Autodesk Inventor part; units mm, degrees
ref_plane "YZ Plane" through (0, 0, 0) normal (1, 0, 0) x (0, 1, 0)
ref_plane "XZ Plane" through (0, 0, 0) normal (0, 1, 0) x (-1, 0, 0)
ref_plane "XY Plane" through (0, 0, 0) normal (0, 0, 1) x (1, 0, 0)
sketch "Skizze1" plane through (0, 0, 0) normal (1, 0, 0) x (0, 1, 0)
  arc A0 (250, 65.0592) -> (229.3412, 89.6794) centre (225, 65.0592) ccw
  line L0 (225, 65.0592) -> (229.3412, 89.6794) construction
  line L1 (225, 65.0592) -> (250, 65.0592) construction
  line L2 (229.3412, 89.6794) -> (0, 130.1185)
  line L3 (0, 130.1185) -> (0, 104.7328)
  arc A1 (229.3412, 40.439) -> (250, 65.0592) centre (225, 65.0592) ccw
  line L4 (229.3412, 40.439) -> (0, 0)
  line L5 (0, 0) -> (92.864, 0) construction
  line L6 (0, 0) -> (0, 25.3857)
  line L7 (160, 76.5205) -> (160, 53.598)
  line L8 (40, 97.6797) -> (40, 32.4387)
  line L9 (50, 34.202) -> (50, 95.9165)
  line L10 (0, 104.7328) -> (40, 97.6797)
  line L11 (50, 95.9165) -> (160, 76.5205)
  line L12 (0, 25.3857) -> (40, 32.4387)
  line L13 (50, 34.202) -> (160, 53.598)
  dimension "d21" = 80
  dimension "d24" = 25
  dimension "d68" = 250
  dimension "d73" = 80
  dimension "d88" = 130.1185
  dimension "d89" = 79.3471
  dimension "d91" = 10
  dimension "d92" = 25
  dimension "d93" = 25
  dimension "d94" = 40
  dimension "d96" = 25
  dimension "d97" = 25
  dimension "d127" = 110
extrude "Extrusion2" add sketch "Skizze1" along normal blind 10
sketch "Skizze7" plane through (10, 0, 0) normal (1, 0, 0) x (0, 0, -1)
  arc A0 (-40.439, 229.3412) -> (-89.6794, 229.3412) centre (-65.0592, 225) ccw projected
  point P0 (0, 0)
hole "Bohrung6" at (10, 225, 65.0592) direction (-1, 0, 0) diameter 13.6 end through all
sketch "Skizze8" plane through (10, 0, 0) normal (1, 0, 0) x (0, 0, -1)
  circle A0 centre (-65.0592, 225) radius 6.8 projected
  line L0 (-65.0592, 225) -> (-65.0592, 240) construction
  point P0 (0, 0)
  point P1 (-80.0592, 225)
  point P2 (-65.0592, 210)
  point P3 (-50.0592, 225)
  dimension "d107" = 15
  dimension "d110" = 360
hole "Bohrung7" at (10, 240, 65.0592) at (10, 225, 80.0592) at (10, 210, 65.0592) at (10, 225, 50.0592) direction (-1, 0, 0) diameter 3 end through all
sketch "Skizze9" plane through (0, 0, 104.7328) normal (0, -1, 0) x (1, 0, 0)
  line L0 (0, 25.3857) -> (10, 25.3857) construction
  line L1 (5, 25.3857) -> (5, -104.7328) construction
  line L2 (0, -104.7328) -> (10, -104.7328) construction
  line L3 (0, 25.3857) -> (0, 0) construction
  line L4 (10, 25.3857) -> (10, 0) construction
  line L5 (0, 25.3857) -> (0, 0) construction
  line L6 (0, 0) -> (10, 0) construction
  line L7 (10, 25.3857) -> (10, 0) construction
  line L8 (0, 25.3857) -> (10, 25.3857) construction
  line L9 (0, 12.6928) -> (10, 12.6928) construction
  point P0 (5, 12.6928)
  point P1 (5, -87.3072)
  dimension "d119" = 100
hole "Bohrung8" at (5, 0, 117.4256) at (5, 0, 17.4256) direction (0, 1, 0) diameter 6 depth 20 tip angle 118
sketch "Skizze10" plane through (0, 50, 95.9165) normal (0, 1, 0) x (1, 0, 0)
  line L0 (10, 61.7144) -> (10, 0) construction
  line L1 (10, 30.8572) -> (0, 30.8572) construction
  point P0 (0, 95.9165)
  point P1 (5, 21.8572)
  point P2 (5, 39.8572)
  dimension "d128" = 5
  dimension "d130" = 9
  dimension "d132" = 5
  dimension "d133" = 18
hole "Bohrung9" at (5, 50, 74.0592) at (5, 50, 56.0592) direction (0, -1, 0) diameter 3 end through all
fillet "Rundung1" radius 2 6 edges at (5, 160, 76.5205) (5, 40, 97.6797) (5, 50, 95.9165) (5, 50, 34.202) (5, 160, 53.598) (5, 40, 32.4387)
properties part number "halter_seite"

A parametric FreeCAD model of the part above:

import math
import FreeCAD as App
import Part
import Sketcher

V = App.Vector
Q = App.Units.Quantity


def edges_at(feature, points):
    """Names of the edges that pass closest to the given points."""
    edges = feature.Shape.Edges
    near = lambda p: min(range(len(edges)), key=lambda i: edges[i].distToShape(Part.Vertex(*p))[0])
    return sorted({f"Edge{near(p) + 1}" for p in points})

doc = App.newDocument("Part")
body = doc.addObject("PartDesign::Body", "Body")

# Sketch on YZ plane
sketch1 = body.newObject("Sketcher::SketchObject", "Sketch")
sketch1.AttachmentSupport = (doc.getObject("YZ_Plane"), [""])
sketch1.MapMode = "FlatFace"
sketch1.addGeometry(Part.ArcOfCircle(Part.Circle(V(225, 65, 0), V(0, 0, 1), 25), math.radians(-80), math.radians(0)), False)
sketch1.addGeometry(Part.ArcOfCircle(Part.Circle(V(225, 65, 0), V(0, 0, 1), 25), math.radians(0), math.radians(80)), False)
sketch1.addGeometry(Part.LineSegment(V(229, 90, 0), V(0, 130, 0)), False)
sketch1.addGeometry(Part.LineSegment(V(0, 130, 0), V(0, 105, 0)), False)
sketch1.addGeometry(Part.LineSegment(V(0, 105, 0), V(40, 98, 0)), False)
sketch1.addGeometry(Part.LineSegment(V(40, 98, 0), V(40, 32, 0)), False)
sketch1.addGeometry(Part.LineSegment(V(40, 32, 0), V(0, 25, 0)), False)
sketch1.addGeometry(Part.LineSegment(V(0, 25, 0), V(0, 0, 0)), False)
sketch1.addGeometry(Part.LineSegment(V(0, 0, 0), V(229, 40, 0)), False)
sketch1.addGeometry(Part.LineSegment(V(50, 96, 0), V(160, 77, 0)), False)
sketch1.addGeometry(Part.LineSegment(V(160, 77, 0), V(160, 54, 0)), False)
sketch1.addGeometry(Part.LineSegment(V(160, 54, 0), V(50, 34, 0)), False)
sketch1.addGeometry(Part.LineSegment(V(50, 34, 0), V(50, 96, 0)), False)
sketch1.addConstraint(Sketcher.Constraint("Tangent", 0, 2, 1, 1))
sketch1.addConstraint(Sketcher.Constraint("Tangent", 1, 2, 2, 1))
sketch1.addConstraint(Sketcher.Constraint("Coincident", 2, 2, 3, 1))
sketch1.addConstraint(Sketcher.Constraint("Coincident", 3, 2, 4, 1))
sketch1.addConstraint(Sketcher.Constraint("Coincident", 4, 2, 5, 1))
sketch1.addConstraint(Sketcher.Constraint("Coincident", 5, 2, 6, 1))
sketch1.addConstraint(Sketcher.Constraint("Coincident", 6, 2, 7, 1))
sketch1.addConstraint(Sketcher.Constraint("Coincident", 7, 2, 8, 1))
sketch1.addConstraint(Sketcher.Constraint("Tangent", 8, 2, 0, 1))
sketch1.addConstraint(Sketcher.Constraint("Coincident", 9, 2, 10, 1))
sketch1.addConstraint(Sketcher.Constraint("Coincident", 10, 2, 11, 1))
sketch1.addConstraint(Sketcher.Constraint("Coincident", 11, 2, 12, 1))
sketch1.addConstraint(Sketcher.Constraint("Coincident", 12, 2, 9, 1))
sketch1.addConstraint(Sketcher.Constraint("Vertical", 3))
sketch1.addConstraint(Sketcher.Constraint("Vertical", 5))
sketch1.addConstraint(Sketcher.Constraint("Vertical", 7))
sketch1.addConstraint(Sketcher.Constraint("Vertical", 10))
sketch1.addConstraint(Sketcher.Constraint("Vertical", 12))
sketch1.addConstraint(Sketcher.Constraint("Coincident", 7, 2, -1, 1))
sketch1.addConstraint(Sketcher.Constraint("Equal", 0, 1))
sketch1.addConstraint(Sketcher.Constraint("PointOnObject", 2, 2, -2))
sketch1.addConstraint(Sketcher.Constraint("Parallel", 2, 4))
sketch1.addConstraint(Sketcher.Constraint("Parallel", 6, 8))
sketch1.addConstraint(Sketcher.Constraint("Parallel", 4, 9))
sketch1.addConstraint(Sketcher.Constraint("Parallel", 8, 11))
sketch1.addConstraint(Sketcher.Constraint("Horizontal", 1, 3, 0, 2))
sketch1.addConstraint(Sketcher.Constraint("Vertical", 1, 2, 8, 2))
sketch1.addConstraint(Sketcher.Constraint("Equal", 3, 7))
sketch1.addConstraint(Sketcher.Constraint("Radius", 0, Q("25 mm")))
sketch1.addConstraint(Sketcher.Constraint("Angle", 4, Q("-10 deg")))
sketch1.addConstraint(Sketcher.Constraint("DistanceX", -1, 1, 0, 2, Q("250 mm")))
sketch1.addConstraint(Sketcher.Constraint("DistanceX", -1, 1, 4, 2, Q("40 mm")))
sketch1.addConstraint(Sketcher.Constraint("DistanceX", 5, 2, 11, 2, Q("10 mm")))
sketch1.addConstraint(Sketcher.Constraint("DistanceX", -1, 1, 9, 2, Q("160 mm")))
sketch1.addConstraint(Sketcher.Constraint("DistanceY", 6, 2, 3, 2, Q("79.347 mm")))
sketch1.addConstraint(Sketcher.Constraint("DistanceY", 10, 2, 10, 1, Q("22.9225 mm")))
sketch1.addConstraint(Sketcher.Constraint("DistanceY", -1, 1, 10, 2, Q("53.598 mm")))
pad1 = body.newObject("PartDesign::Pad", "Pad")
pad1.Profile = sketch1
pad1.Length = 10

# Sketch on YZ plane
sketch2 = body.newObject("Sketcher::SketchObject", "Sketch001")
sketch2.AttachmentSupport = (doc.getObject("YZ_Plane"), [""])
sketch2.MapMode = "FlatFace"
sketch2.AttachmentOffset = App.Placement(V(0, 0, 10), App.Rotation())
sketch2.addGeometry(Part.Circle(V(225, 65, 0), V(0, 0, 1), 7), False)
sketch2.addConstraint(Sketcher.Constraint("Diameter", 0, Q("13.6 mm")))
sketch2.addConstraint(Sketcher.Constraint("DistanceX", -1, 1, 0, 3, Q("225 mm")))
sketch2.addConstraint(Sketcher.Constraint("DistanceY", -1, 1, 0, 3, Q("65.0592 mm")))
doc.recompute()
hole = body.newObject("PartDesign::Hole", "Hole")
hole.Profile = sketch2
hole.ThreadType = "None"
hole.Diameter = 13.6
hole.DepthType = "ThroughAll"

# Sketch on YZ plane
sketch3 = body.newObject("Sketcher::SketchObject", "Sketch002")
sketch3.AttachmentSupport = (doc.getObject("YZ_Plane"), [""])
sketch3.MapMode = "FlatFace"
sketch3.AttachmentOffset = App.Placement(V(0, 0, 10), App.Rotation())
sketch3.addGeometry(Part.Circle(V(240, 65.1, 0), V(0, 0, 1), 1.5), False)
sketch3.addGeometry(Part.Circle(V(225, 80.1, 0), V(0, 0, 1), 1.5), False)
sketch3.addGeometry(Part.Circle(V(210, 65.1, 0), V(0, 0, 1), 1.5), False)
sketch3.addGeometry(Part.Circle(V(225, 50.1, 0), V(0, 0, 1), 1.5), False)
sketch3.addConstraint(Sketcher.Constraint("Equal", 0, 1))
sketch3.addConstraint(Sketcher.Constraint("Equal", 1, 2))
sketch3.addConstraint(Sketcher.Constraint("Equal", 2, 3))
sketch3.addConstraint(Sketcher.Constraint("Horizontal", 0, 3, 2, 3))
sketch3.addConstraint(Sketcher.Constraint("Vertical", 1, 3, 3, 3))
sketch3.addConstraint(Sketcher.Constraint("Diameter", 0, Q("3 mm")))
sketch3.addConstraint(Sketcher.Constraint("DistanceX", -1, 1, 0, 3, Q("240 mm")))
sketch3.addConstraint(Sketcher.Constraint("DistanceX", -1, 1, 1, 3, Q("225 mm")))
sketch3.addConstraint(Sketcher.Constraint("DistanceX", -1, 1, 2, 3, Q("210 mm")))
sketch3.addConstraint(Sketcher.Constraint("DistanceY", 0, 3, 1, 3, Q("15 mm")))
sketch3.addConstraint(Sketcher.Constraint("DistanceY", 3, 3, 0, 3, Q("15 mm")))
sketch3.addConstraint(Sketcher.Constraint("DistanceY", -1, 1, 0, 3, Q("65.0592 mm")))
doc.recompute()
hole2 = body.newObject("PartDesign::Hole", "Hole001")
hole2.Profile = sketch3
hole2.ThreadType = "None"
hole2.Diameter = 3
hole2.DepthType = "ThroughAll"

# Sketch on XZ plane
sketch4 = body.newObject("Sketcher::SketchObject", "Sketch003")
sketch4.AttachmentSupport = (doc.getObject("XZ_Plane"), [""])
sketch4.MapMode = "FlatFace"
sketch4.addGeometry(Part.Circle(V(5, 117.4, 0), V(0, 0, 1), 3), False)
sketch4.addGeometry(Part.Circle(V(5, 17.4, 0), V(0, 0, 1), 3), False)
sketch4.addConstraint(Sketcher.Constraint("Equal", 0, 1))
sketch4.addConstraint(Sketcher.Constraint("Vertical", 0, 3, 1, 3))
sketch4.addConstraint(Sketcher.Constraint("Diameter", 0, Q("6 mm")))
sketch4.addConstraint(Sketcher.Constraint("DistanceX", -1, 1, 0, 3, Q("5 mm")))
sketch4.addConstraint(Sketcher.Constraint("DistanceY", 1, 3, 0, 3, Q("100 mm")))
sketch4.addConstraint(Sketcher.Constraint("DistanceY", -1, 1, 0, 3, Q("117.4256 mm")))
doc.recompute()
hole3 = body.newObject("PartDesign::Hole", "Hole002")
hole3.Profile = sketch4
hole3.ThreadType = "None"
hole3.Diameter = 6
hole3.DepthType = "Dimension"
hole3.Depth = 20
hole3.DrillPoint = "Angled"
hole3.DrillPointAngle = 118

# Sketch on XZ plane
sketch5 = body.newObject("Sketcher::SketchObject", "Sketch004")
sketch5.AttachmentSupport = (doc.getObject("XZ_Plane"), [""])
sketch5.MapMode = "FlatFace"
sketch5.AttachmentOffset = App.Placement(V(0, 0, -50), App.Rotation())
sketch5.addGeometry(Part.Circle(V(5, 74.1, 0), V(0, 0, 1), 1.5), False)
sketch5.addGeometry(Part.Circle(V(5, 56.1, 0), V(0, 0, 1), 1.5), False)
sketch5.addConstraint(Sketcher.Constraint("Equal", 0, 1))
sketch5.addConstraint(Sketcher.Constraint("Vertical", 0, 3, 1, 3))
sketch5.addConstraint(Sketcher.Constraint("Diameter", 0, Q("3 mm")))
sketch5.addConstraint(Sketcher.Constraint("DistanceX", -1, 1, 0, 3, Q("5 mm")))
sketch5.addConstraint(Sketcher.Constraint("DistanceY", 1, 3, 0, 3, Q("18 mm")))
sketch5.addConstraint(Sketcher.Constraint("DistanceY", -1, 1, 0, 3, Q("74.0592 mm")))
doc.recompute()
hole4 = body.newObject("PartDesign::Hole", "Hole003")
hole4.Profile = sketch5
hole4.ThreadType = "None"
hole4.Diameter = 3
hole4.DepthType = "ThroughAll"
hole4.Reversed = True
doc.recompute()

fillet = body.newObject("PartDesign::Fillet", "Fillet")
fillet.Base = (hole4, edges_at(hole4, [
    (5, 160, 76.52),
    (5, 40, 97.68),
    (5, 50, 95.916),
    (5, 50, 34.202),
    (5, 160, 53.598),
    (5, 40, 32.439),
]))
fillet.Radius = 2

doc.recompute()
